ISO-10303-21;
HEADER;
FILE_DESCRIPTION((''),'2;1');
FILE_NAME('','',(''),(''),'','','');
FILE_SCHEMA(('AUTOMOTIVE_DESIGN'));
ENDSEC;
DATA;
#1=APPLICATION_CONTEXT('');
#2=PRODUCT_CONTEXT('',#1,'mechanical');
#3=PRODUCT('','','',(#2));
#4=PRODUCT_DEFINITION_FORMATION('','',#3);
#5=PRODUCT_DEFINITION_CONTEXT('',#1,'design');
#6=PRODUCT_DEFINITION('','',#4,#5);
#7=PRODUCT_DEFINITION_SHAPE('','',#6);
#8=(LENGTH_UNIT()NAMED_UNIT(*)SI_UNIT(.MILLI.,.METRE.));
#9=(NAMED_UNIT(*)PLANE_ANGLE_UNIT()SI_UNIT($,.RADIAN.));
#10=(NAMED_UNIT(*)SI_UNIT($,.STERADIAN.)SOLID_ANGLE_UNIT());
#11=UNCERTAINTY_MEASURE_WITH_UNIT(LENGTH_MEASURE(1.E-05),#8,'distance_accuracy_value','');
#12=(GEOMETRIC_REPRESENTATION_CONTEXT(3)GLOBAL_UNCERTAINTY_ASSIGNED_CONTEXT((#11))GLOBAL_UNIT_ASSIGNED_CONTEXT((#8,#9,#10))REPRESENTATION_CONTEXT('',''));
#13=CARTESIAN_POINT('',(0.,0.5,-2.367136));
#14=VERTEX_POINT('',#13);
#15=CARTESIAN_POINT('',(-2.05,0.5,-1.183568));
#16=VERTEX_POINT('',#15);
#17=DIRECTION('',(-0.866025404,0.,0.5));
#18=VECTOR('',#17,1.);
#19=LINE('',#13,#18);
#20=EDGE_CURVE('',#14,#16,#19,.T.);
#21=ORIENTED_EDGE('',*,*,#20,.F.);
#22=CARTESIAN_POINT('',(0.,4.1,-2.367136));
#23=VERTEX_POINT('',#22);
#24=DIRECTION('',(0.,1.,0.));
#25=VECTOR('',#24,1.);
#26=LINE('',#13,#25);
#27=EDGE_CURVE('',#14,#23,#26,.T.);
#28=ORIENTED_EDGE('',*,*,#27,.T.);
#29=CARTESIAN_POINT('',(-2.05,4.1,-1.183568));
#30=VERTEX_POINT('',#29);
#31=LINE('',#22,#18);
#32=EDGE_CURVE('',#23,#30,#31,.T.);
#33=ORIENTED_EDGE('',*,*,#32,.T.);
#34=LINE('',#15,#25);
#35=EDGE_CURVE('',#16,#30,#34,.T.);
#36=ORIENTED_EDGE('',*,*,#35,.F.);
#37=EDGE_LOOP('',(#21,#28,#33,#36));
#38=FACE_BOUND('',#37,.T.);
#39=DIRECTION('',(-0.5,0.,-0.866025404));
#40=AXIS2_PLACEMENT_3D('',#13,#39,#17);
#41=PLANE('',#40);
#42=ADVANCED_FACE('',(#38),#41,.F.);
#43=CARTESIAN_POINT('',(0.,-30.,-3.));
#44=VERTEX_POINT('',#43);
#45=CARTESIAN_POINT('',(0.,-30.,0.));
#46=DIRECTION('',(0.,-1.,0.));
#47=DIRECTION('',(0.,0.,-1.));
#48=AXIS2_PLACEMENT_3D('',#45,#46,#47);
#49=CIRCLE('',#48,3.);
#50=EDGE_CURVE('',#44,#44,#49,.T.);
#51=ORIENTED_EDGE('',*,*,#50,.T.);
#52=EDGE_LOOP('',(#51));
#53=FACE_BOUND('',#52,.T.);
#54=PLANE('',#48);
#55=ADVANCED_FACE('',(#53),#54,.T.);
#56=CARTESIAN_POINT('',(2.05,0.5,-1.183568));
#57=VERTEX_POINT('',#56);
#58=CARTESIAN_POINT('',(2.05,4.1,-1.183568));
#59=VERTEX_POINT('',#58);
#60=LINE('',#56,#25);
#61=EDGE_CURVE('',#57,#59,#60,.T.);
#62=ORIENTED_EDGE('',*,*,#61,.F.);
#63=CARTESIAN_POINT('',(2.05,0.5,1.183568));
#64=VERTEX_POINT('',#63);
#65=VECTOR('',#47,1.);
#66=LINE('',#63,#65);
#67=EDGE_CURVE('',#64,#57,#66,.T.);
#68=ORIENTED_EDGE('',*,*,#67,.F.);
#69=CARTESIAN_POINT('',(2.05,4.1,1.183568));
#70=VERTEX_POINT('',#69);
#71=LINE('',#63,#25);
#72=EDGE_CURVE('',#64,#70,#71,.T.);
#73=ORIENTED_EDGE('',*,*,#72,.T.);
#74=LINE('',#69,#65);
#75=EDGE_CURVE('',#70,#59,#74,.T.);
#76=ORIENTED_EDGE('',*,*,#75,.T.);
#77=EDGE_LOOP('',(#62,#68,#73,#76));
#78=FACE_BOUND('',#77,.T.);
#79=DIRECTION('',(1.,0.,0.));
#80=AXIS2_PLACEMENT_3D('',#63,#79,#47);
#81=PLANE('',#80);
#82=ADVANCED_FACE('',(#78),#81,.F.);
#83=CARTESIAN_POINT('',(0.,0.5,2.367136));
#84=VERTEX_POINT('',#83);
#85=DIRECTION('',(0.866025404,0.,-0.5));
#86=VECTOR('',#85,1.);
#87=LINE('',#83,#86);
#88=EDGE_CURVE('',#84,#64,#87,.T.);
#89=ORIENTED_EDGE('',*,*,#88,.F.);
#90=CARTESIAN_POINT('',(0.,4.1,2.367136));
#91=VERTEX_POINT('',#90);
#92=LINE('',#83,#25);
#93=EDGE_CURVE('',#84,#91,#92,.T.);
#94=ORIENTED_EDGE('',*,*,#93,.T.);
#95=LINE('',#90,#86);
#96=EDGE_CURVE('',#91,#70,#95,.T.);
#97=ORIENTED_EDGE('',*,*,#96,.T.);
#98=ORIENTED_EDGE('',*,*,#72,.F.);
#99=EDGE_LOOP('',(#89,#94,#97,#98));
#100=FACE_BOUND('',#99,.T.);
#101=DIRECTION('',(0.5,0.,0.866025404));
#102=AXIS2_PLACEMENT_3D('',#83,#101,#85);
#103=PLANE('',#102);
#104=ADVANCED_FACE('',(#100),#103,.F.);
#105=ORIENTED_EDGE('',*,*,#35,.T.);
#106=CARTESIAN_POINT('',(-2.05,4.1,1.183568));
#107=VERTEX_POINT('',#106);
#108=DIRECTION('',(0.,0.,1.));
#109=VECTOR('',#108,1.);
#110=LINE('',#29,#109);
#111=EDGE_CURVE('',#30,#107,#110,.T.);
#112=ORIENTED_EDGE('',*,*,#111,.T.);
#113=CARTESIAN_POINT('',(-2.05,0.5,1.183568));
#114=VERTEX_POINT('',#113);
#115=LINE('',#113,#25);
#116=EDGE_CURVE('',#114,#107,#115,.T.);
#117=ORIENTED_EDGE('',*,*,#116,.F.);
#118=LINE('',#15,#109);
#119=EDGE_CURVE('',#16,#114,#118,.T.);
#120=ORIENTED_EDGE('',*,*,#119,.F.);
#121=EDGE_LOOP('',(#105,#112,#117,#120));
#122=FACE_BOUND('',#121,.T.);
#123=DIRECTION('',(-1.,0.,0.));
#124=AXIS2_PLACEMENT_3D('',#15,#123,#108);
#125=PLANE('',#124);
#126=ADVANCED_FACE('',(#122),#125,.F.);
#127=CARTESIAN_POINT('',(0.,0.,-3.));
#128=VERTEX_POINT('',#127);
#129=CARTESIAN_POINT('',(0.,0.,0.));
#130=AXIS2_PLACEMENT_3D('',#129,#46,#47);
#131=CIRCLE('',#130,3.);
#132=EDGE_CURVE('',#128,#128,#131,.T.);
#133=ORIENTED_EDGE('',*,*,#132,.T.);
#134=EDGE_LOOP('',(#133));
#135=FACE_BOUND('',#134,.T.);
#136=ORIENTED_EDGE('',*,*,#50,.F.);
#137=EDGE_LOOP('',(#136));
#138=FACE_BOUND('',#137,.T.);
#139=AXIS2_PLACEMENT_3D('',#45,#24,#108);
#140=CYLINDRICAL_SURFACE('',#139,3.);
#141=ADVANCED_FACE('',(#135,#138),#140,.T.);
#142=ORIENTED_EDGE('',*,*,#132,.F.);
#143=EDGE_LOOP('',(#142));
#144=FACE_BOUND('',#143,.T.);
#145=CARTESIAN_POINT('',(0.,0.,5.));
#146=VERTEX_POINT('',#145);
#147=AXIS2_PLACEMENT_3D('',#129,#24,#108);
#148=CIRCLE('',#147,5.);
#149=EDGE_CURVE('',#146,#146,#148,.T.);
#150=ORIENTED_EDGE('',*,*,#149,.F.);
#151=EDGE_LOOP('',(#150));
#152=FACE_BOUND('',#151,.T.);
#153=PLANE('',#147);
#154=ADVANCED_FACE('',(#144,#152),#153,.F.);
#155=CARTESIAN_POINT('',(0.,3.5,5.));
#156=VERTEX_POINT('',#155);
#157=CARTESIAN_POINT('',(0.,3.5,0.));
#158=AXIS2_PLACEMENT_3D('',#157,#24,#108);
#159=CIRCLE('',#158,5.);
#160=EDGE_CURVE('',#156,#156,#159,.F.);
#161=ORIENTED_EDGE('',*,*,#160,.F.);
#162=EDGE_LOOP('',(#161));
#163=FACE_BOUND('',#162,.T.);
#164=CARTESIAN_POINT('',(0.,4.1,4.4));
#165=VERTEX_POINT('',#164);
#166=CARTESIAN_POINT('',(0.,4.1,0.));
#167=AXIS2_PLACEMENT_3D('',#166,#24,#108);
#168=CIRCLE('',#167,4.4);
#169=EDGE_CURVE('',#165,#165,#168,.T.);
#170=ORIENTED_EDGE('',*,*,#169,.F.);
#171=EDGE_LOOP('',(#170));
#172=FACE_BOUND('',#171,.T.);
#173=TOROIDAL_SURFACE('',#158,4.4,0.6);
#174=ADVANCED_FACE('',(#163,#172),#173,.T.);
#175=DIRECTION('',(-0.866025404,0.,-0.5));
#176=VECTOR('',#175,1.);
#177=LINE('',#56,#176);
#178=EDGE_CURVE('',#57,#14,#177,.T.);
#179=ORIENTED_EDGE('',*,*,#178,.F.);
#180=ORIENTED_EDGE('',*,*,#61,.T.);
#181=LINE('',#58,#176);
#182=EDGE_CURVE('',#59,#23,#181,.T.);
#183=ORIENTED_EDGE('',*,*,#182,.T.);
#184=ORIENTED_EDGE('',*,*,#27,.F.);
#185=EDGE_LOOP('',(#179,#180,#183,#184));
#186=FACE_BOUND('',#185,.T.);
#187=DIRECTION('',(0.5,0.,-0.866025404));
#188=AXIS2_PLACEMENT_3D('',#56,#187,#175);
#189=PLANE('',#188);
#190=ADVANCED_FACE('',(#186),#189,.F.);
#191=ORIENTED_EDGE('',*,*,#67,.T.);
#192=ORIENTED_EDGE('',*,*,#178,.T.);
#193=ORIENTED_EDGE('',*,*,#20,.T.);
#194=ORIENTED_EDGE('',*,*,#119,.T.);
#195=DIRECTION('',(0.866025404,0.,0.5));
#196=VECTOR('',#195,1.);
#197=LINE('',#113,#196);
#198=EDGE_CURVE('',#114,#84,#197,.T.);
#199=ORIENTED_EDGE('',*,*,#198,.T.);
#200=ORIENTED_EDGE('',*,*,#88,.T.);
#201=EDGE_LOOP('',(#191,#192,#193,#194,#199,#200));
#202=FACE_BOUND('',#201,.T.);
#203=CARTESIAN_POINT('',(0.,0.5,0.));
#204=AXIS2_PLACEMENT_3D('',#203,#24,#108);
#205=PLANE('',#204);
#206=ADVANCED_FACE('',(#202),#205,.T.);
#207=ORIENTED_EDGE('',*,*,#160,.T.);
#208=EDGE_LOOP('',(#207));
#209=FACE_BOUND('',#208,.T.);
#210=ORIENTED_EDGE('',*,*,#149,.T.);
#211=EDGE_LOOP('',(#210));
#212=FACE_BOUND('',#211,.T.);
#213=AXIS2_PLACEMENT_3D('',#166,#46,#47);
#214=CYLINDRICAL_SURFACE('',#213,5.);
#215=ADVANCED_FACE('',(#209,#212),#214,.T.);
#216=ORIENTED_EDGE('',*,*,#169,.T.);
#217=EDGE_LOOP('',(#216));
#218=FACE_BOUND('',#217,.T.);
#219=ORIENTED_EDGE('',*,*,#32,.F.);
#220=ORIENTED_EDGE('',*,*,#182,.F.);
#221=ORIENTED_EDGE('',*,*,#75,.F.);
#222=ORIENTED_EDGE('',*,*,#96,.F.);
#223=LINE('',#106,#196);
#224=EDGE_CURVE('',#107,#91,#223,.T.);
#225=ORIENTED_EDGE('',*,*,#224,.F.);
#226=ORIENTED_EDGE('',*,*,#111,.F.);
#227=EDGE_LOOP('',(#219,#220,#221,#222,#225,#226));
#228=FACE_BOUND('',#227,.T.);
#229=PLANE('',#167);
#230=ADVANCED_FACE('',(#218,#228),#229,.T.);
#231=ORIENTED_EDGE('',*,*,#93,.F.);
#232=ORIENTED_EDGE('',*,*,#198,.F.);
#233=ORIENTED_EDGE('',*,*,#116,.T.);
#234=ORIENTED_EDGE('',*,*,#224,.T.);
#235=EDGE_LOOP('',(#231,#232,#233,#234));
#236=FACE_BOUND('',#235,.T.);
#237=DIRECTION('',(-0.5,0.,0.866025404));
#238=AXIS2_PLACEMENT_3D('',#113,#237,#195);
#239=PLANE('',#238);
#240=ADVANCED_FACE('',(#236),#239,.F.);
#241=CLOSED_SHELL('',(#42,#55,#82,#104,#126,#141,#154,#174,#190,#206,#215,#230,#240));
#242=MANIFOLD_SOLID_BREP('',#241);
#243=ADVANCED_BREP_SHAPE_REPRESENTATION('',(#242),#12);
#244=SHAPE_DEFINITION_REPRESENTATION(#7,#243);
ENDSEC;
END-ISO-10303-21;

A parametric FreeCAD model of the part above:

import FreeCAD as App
import Part
import Sketcher

V = App.Vector
Q = App.Units.Quantity


def edges_at(feature, points):
    """Names of the edges that pass closest to the given points."""
    edges = feature.Shape.Edges
    near = lambda p: min(range(len(edges)), key=lambda i: edges[i].distToShape(Part.Vertex(*p))[0])
    return sorted({f"Edge{near(p) + 1}" for p in points})

doc = App.newDocument("Part")
body = doc.addObject("PartDesign::Body", "Body")

# Sketch on XZ plane
sketch1 = body.newObject("Sketcher::SketchObject", "Sketch")
sketch1.AttachmentSupport = (doc.getObject("XZ_Plane"), [""])
sketch1.MapMode = "FlatFace"
sketch1.addGeometry(Part.Circle(V(0, 0, 0), V(0, 0, 1), 5), False)
sketch1.addConstraint([
    Sketcher.Constraint("Coincident", 0, 3, -1, 1),
    Sketcher.Constraint("Diameter", 0, 10.0),
])
pad1 = body.newObject("PartDesign::Pad", "Pad")
pad1.Profile = sketch1
pad1.Length = 4.1
pad1.Reversed = True
doc.recompute()

fillet = body.newObject("PartDesign::Fillet", "Fillet")
fillet.Base = (pad1, edges_at(pad1, [(0, 4.1, -5)]))
fillet.Radius = 0.6

# Sketch on XZ plane
sketch2 = body.newObject("Sketcher::SketchObject", "Sketch001")
sketch2.AttachmentSupport = (doc.getObject("XZ_Plane"), [""])
sketch2.MapMode = "FlatFace"
sketch2.AttachmentOffset = App.Placement(V(0, 0, -4.1), App.Rotation())
sketch2.addGeometry([
    Part.LineSegment(V(0, 2.4, 0), V(2, 1.2, 0)),  # 0
    Part.LineSegment(V(2, 1.2, 0), V(2, -1.2, 0)),  # 1
    Part.LineSegment(V(2, -1.2, 0), V(0, -2.4, 0)),  # 2
    Part.LineSegment(V(0, -2.4, 0), V(-2, -1.2, 0)),  # 3
    Part.LineSegment(V(-2, -1.2, 0), V(-2, 1.2, 0)),  # 4
    Part.LineSegment(V(-2, 1.2, 0), V(0, 2.4, 0)),  # 5
], False)
sketch2.addConstraint([
    Sketcher.Constraint("Coincident", 0, 2, 1, 1),
    Sketcher.Constraint("Coincident", 1, 2, 2, 1),
    Sketcher.Constraint("Coincident", 2, 2, 3, 1),
    Sketcher.Constraint("Coincident", 3, 2, 4, 1),
    Sketcher.Constraint("Coincident", 4, 2, 5, 1),
    Sketcher.Constraint("Coincident", 5, 2, 0, 1),
    Sketcher.Constraint("Vertical", 1),
    Sketcher.Constraint("Vertical", 4),
    Sketcher.Constraint("Symmetric", 0, 2, 3, 2, -1, 1),
    Sketcher.Constraint("Symmetric", 2, 2, 5, 2, -1, 1),
    Sketcher.Constraint("PointOnObject", 2, 2, -2),
    Sketcher.Constraint("Parallel", 2, 5),
    Sketcher.Constraint("Horizontal", 1, 2, 3, 2),
    Sketcher.Constraint("Angle", 0, Q("-30 deg")),
    Sketcher.Constraint("DistanceX", 3, 2, 1, 2, 4.1),
    Sketcher.Constraint("DistanceY", 1, 2, 1, 1, 2.367136),
])
pocket1 = body.newObject("PartDesign::Pocket", "Pocket")
pocket1.Profile = sketch2
pocket1.Length = 3.6
pocket1.Reversed = True

# Sketch on XZ plane
sketch3 = body.newObject("Sketcher::SketchObject", "Sketch002")
sketch3.AttachmentSupport = (doc.getObject("XZ_Plane"), [""])
sketch3.MapMode = "FlatFace"
sketch3.addGeometry(Part.Circle(V(0, 0, 0), V(0, 0, 1), 3), False)
sketch3.addConstraint([
    Sketcher.Constraint("Coincident", 0, 3, -1, 1),
    Sketcher.Constraint("Diameter", 0, 6.0),
])
pad2 = body.newObject("PartDesign::Pad", "Pad001")
pad2.Profile = sketch3
pad2.Length = 30

doc.recompute()
